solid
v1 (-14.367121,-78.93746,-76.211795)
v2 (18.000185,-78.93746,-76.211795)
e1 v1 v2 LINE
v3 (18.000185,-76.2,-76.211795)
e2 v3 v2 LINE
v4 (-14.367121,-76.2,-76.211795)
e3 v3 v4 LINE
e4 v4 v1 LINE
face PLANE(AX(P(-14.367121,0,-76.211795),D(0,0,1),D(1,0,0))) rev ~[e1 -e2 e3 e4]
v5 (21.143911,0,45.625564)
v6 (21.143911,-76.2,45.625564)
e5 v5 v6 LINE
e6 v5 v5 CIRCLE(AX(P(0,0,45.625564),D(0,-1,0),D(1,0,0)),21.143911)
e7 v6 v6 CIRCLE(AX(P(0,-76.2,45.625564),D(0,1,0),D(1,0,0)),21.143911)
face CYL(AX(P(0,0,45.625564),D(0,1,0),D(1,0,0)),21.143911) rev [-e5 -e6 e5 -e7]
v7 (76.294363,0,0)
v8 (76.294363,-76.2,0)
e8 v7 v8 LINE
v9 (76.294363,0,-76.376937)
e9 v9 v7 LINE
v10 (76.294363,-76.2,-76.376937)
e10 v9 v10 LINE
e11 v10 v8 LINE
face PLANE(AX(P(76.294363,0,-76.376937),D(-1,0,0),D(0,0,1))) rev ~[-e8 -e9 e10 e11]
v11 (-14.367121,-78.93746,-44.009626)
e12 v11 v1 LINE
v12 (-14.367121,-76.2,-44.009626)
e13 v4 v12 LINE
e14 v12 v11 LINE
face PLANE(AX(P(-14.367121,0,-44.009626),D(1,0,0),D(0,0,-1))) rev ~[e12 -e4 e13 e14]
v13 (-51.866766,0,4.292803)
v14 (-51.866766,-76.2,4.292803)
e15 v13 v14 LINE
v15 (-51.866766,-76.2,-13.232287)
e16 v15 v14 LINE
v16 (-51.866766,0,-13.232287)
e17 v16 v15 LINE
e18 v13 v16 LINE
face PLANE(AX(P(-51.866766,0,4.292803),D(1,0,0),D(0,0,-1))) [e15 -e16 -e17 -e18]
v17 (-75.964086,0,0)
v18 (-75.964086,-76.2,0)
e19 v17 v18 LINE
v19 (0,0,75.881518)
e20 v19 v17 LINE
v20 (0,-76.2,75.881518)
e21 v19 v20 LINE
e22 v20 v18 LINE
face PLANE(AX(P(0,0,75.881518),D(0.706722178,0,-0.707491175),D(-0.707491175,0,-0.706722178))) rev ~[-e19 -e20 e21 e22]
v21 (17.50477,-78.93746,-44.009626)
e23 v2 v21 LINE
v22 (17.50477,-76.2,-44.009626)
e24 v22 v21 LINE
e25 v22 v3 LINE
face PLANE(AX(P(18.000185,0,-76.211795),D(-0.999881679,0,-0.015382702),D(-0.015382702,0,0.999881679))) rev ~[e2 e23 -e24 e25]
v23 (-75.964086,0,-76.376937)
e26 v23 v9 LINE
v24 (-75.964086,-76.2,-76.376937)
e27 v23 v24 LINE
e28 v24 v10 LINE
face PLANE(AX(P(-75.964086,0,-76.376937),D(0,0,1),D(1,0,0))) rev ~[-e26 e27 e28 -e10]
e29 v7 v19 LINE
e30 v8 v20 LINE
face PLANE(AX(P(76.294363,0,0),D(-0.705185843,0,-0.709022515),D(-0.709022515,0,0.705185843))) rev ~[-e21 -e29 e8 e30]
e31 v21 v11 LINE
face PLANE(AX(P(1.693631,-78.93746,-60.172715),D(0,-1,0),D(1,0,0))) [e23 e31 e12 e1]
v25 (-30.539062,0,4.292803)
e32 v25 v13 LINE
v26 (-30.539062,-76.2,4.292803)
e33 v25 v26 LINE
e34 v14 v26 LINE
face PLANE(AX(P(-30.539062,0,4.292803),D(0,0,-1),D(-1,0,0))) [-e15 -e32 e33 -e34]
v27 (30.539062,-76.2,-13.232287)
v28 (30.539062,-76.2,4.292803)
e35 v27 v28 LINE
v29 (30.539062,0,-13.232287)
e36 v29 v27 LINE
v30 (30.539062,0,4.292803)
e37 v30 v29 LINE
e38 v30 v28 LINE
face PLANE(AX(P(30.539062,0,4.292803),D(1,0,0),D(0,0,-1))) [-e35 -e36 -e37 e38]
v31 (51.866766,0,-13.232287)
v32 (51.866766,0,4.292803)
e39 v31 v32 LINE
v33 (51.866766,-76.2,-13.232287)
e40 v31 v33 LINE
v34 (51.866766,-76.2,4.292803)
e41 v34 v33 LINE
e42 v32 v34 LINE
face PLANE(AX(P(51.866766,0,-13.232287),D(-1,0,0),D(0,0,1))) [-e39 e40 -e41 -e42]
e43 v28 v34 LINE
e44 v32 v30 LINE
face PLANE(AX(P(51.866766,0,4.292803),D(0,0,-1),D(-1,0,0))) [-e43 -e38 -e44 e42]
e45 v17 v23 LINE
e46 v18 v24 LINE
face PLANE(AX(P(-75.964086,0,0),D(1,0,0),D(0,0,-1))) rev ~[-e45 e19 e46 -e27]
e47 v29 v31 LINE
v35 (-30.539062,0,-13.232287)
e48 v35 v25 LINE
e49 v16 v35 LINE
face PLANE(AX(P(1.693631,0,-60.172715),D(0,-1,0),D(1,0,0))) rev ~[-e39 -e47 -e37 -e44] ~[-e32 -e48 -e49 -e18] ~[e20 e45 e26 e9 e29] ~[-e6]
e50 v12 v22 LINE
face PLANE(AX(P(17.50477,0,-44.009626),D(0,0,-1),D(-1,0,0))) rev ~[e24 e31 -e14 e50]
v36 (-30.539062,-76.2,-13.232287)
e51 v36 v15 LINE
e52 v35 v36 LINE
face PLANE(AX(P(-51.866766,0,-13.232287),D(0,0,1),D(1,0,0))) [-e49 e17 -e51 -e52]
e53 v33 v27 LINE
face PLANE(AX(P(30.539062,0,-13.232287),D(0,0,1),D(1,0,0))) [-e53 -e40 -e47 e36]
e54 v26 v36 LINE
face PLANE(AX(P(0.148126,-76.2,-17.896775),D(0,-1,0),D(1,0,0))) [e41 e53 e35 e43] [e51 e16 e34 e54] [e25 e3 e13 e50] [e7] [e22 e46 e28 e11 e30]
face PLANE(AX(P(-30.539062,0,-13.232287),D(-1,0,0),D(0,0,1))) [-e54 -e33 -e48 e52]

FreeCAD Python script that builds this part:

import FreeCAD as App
import Part
import Sketcher

V = App.Vector
Q = App.Units.Quantity

doc = App.newDocument("Part")
params = doc.addObject("Spreadsheet::Sheet", "Params")
for row, (alias, value) in enumerate([
    ("pad1_length", "3 in"),
    ("pad2_length", "78.93746 mm"),
    ("pocket1_length", "80.45524 mm"),
    ("pocket2_length", "84.04915 mm"),
], start=1):
    params.set(f"A{row}", alias)
    params.set(f"B{row}", "=" + value)
    params.setAlias(f"B{row}", alias)

body = doc.addObject("PartDesign::Body", "Body")

sketch1 = body.newObject("Sketcher::SketchObject", "Sketch")
sketch1.AttachmentSupport = (doc.getObject("XZ_Plane"), [""])
sketch1.MapMode = "FlatFace"
sketch1.addGeometry([
    Part.LineSegment(V(76.294363, 0, 0), V(0, 75.881518, 0)),
    Part.LineSegment(V(0, 75.881518, 0), V(-75.964086, 0, 0)),
    Part.LineSegment(V(-75.964086, 0, 0), V(-75.964086, -76.376937, 0)),
    Part.LineSegment(V(-75.964086, -76.376937, 0), V(76.294363, -76.376937, 0)),
    Part.LineSegment(V(76.294363, -76.376937, 0), V(76.294363, 0, 0)),
], False)
sketch1.addConstraint([
    Sketcher.Constraint("Coincident", 0, 2, 1, 1),
    Sketcher.Constraint("Coincident", 1, 2, 2, 1),
    Sketcher.Constraint("Coincident", 2, 2, 3, 1),
    Sketcher.Constraint("Coincident", 3, 2, 4, 1),
    Sketcher.Constraint("Coincident", 4, 2, 0, 1),
    Sketcher.Constraint("Vertical", 2),
    Sketcher.Constraint("Horizontal", 3),
    Sketcher.Constraint("Vertical", 4),
    Sketcher.Constraint("PointOnObject", 0, 2, -2),
    Sketcher.Constraint("PointOnObject", 1, 2, -1),
    Sketcher.Constraint("PointOnObject", 4, 2, -1),
    Sketcher.Constraint("DistanceX", 3, 1, 3, 2, Q("152.258449 mm")),
    Sketcher.Constraint("DistanceY", 2, 2, 2, 1, Q("76.376937 mm")),
    Sketcher.Constraint("DistanceY", -1, 1, 0, 2, Q("75.881518 mm")),
    Sketcher.Constraint("Distance", 0, Q("107.604993 mm")),
])
pad1 = body.newObject("PartDesign::Pad", "Pad")
pad1.Profile = sketch1
pad1.setExpression("Length", "Params.pad1_length")

sketch2 = body.newObject("Sketcher::SketchObject", "Sketch001")
sketch2.AttachmentSupport = (doc.getObject("XZ_Plane"), [""])
sketch2.MapMode = "FlatFace"
sketch2.addGeometry([
    Part.LineSegment(V(18.000185, -76.211795, 0), V(17.50477, -44.009626, 0)),
    Part.LineSegment(V(17.50477, -44.009626, 0), V(-14.367121, -44.009626, 0)),
    Part.LineSegment(V(-14.367121, -44.009626, 0), V(-14.367121, -76.211795, 0)),
    Part.LineSegment(V(-14.367121, -76.211795, 0), V(18.000185, -76.211795, 0)),
], False)
sketch2.addConstraint([
    Sketcher.Constraint("Coincident", 0, 2, 1, 1),
    Sketcher.Constraint("Coincident", 1, 2, 2, 1),
    Sketcher.Constraint("Coincident", 2, 2, 3, 1),
    Sketcher.Constraint("Coincident", 3, 2, 0, 1),
    Sketcher.Constraint("Horizontal", 1),
    Sketcher.Constraint("Vertical", 2),
    Sketcher.Constraint("Horizontal", 3),
    Sketcher.Constraint("DistanceX", 1, 2, 1, 1, Q("31.871891 mm")),
    Sketcher.Constraint("DistanceY", 2, 2, 2, 1, Q("32.202169 mm")),
    Sketcher.Constraint("Distance", 0, Q("32.20598 mm")),
    Sketcher.Constraint("DistanceX", -1, 1, 0, 2, Q("17.50477 mm")),
    Sketcher.Constraint("DistanceY", 0, 2, -1, 1, Q("44.009626 mm")),
])
pad2 = body.newObject("PartDesign::Pad", "Pad001")
pad2.Profile = sketch2
pad2.setExpression("Length", "Params.pad2_length")

sketch3 = body.newObject("Sketcher::SketchObject", "Sketch002")
sketch3.AttachmentSupport = (doc.getObject("XZ_Plane"), [""])
sketch3.MapMode = "FlatFace"
sketch3.addGeometry([
    Part.LineSegment(V(-51.866766, 4.292803, 0), V(-51.866766, -13.232287, 0)),
    Part.LineSegment(V(-51.866766, -13.232287, 0), V(-30.539062, -13.232287, 0)),
    Part.LineSegment(V(-30.539062, -13.232287, 0), V(-30.539062, 4.292803, 0)),
    Part.LineSegment(V(-30.539062, 4.292803, 0), V(-51.866766, 4.292803, 0)),
    Part.LineSegment(V(51.866766, -13.232287, 0), V(51.866766, 4.292803, 0)),
    Part.LineSegment(V(51.866766, 4.292803, 0), V(30.539062, 4.292803, 0)),
    Part.LineSegment(V(30.539062, 4.292803, 0), V(30.539062, -13.232287, 0)),
    Part.LineSegment(V(30.539062, -13.232287, 0), V(51.866766, -13.232287, 0)),
], False)
sketch3.addConstraint([
    Sketcher.Constraint("Coincident", 0, 2, 1, 1),
    Sketcher.Constraint("Coincident", 1, 2, 2, 1),
    Sketcher.Constraint("Coincident", 2, 2, 3, 1),
    Sketcher.Constraint("Coincident", 3, 2, 0, 1),
    Sketcher.Constraint("Coincident", 4, 2, 5, 1),
    Sketcher.Constraint("Coincident", 5, 2, 6, 1),
    Sketcher.Constraint("Coincident", 6, 2, 7, 1),
    Sketcher.Constraint("Coincident", 7, 2, 4, 1),
    Sketcher.Constraint("Vertical", 0),
    Sketcher.Constraint("Horizontal", 1),
    Sketcher.Constraint("Vertical", 2),
    Sketcher.Constraint("Horizontal", 3),
    Sketcher.Constraint("Vertical", 4),
    Sketcher.Constraint("Horizontal", 5),
    Sketcher.Constraint("Vertical", 6),
    Sketcher.Constraint("Horizontal", 7),
    Sketcher.Constraint("Symmetric", 3, 2, 4, 2, -2),
    Sketcher.Constraint("Symmetric", 1, 2, 6, 2, -2),
    Sketcher.Constraint("DistanceY", 0, 2, 0, 1, Q("17.52509 mm")),
    Sketcher.Constraint("DistanceX", 1, 1, 1, 2, Q("21.327704 mm")),
    Sketcher.Constraint("DistanceX", 2, 2, 4, 2, Q("82.405828 mm")),
    Sketcher.Constraint("DistanceY", 0, 2, -1, 1, Q("13.232287 mm")),
])
pocket1 = body.newObject("PartDesign::Pocket", "Pocket")
pocket1.Profile = sketch3
pocket1.setExpression("Length", "Params.pocket1_length")
pocket1.Reversed = True

sketch4 = body.newObject("Sketcher::SketchObject", "Sketch003")
sketch4.AttachmentSupport = (doc.getObject("XZ_Plane"), [""])
sketch4.MapMode = "FlatFace"
sketch4.addGeometry(Part.Circle(V(0, 45.625564, 0), V(0, 0, 1), 21.143911), False)
sketch4.addConstraint([
    Sketcher.Constraint("PointOnObject", 0, 3, -2),
    Sketcher.Constraint("Diameter", 0, Q("42.287822 mm")),
    Sketcher.Constraint("DistanceY", -1, 1, 0, 3, Q("45.625564 mm")),
])
pocket2 = body.newObject("PartDesign::Pocket", "Pocket001")
pocket2.Profile = sketch4
pocket2.setExpression("Length", "Params.pocket2_length")
pocket2.Reversed = True

doc.recompute()
